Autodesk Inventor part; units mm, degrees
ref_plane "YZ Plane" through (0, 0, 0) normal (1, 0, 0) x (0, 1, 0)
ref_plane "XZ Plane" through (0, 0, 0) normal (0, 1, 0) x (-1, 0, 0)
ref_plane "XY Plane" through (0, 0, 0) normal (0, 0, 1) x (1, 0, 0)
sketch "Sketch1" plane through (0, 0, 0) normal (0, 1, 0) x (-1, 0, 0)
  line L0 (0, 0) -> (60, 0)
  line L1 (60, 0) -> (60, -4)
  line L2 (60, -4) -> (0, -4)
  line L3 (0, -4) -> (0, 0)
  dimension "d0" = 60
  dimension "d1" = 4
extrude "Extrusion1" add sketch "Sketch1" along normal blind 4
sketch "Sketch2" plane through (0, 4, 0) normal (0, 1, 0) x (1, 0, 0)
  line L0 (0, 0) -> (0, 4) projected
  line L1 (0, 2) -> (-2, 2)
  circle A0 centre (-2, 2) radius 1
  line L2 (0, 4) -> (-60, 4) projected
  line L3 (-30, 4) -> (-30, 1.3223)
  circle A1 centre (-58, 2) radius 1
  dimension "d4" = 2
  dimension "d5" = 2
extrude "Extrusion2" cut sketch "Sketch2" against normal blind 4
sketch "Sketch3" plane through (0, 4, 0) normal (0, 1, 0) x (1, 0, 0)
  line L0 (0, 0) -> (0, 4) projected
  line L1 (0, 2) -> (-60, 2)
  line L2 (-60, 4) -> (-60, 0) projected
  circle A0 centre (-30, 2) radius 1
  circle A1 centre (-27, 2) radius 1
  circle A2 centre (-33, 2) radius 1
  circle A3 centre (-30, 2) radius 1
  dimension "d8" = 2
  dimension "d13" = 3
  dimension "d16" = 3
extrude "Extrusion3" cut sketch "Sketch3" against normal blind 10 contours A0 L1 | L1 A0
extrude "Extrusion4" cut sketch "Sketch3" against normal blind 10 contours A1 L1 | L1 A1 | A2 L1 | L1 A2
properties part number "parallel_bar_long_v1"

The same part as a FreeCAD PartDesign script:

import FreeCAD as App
import Part
import Sketcher

V = App.Vector


def add_polygon(sketch, points):
    """Adds a closed chain of lines whose ends are joined by coincident constraints."""
    first, n = sketch.GeometryCount, len(points)
    for a, b in zip(points, points[1:] + points[:1]):
        sketch.addGeometry(Part.LineSegment(App.Vector(*a, 0), App.Vector(*b, 0)), False)
    for i in range(n):
        sketch.addConstraint(Sketcher.Constraint("Coincident", first + i, 2, first + (i + 1) % n, 1))

doc = App.newDocument("Part")
params = doc.addObject("Spreadsheet::Sheet", "Params")
for row, (alias, value) in enumerate([
    ("sketch1_width", "60 mm"),
    ("sketch1_height", "4 mm"),
    ("pad1_length", "4 mm"),
    ("sketch2_diameter", "2 mm"),
    ("pocket1_length", "4 mm"),
    ("sketch3_diameter", "2 mm"),
    ("pocket2_length", "10 mm"),
    ("sketch4_diameter", "2 mm"),
    ("pocket3_length", "10 mm"),
], start=1):
    params.set(f"A{row}", alias)
    params.set(f"B{row}", "=" + value)
    params.setAlias(f"B{row}", alias)

body = doc.addObject("PartDesign::Body", "Body")

# Sketch on XZ plane
sketch1 = body.newObject("Sketcher::SketchObject", "Sketch")
sketch1.AttachmentSupport = (doc.getObject("XZ_Plane"), [""])
sketch1.MapMode = "FlatFace"
add_polygon(sketch1, [(-60, 0), (0, 0), (0, -4), (-60, -4)])  # lines 0-3
sketch1.addConstraint(Sketcher.Constraint("Horizontal", 0))
sketch1.addConstraint(Sketcher.Constraint("Vertical", 1))
sketch1.addConstraint(Sketcher.Constraint("Horizontal", 2))
sketch1.addConstraint(Sketcher.Constraint("Vertical", 3))
sketch1.addConstraint(Sketcher.Constraint("Coincident", 0, 2, -1, 1))
sketch1.addConstraint(Sketcher.Constraint("DistanceX", 0, 1, 0, 2, 60.0))
sketch1.addConstraint(Sketcher.Constraint("DistanceY", 1, 2, 1, 1, 4.0))
sketch1.setExpression("Constraints[9]", "Params.sketch1_width")
sketch1.setExpression("Constraints[10]", "Params.sketch1_height")
pad1 = body.newObject("PartDesign::Pad", "Pad")
pad1.Profile = sketch1
pad1.setExpression("Length", "Params.pad1_length")
pad1.Reversed = True

# Sketch on XZ plane
sketch2 = body.newObject("Sketcher::SketchObject", "Sketch001")
sketch2.AttachmentSupport = (doc.getObject("XZ_Plane"), [""])
sketch2.MapMode = "FlatFace"
sketch2.AttachmentOffset = App.Placement(V(0, 0, -4), App.Rotation())
sketch2.addGeometry(Part.Circle(V(-2, -2, 0), V(0, 0, 1), 1), False)
sketch2.addGeometry(Part.Circle(V(-58, -2, 0), V(0, 0, 1), 1), False)
sketch2.addConstraint(Sketcher.Constraint("Equal", 0, 1))
sketch2.addConstraint(Sketcher.Constraint("Horizontal", 0, 3, 1, 3))
sketch2.addConstraint(Sketcher.Constraint("Diameter", 0, 2.0))
sketch2.addConstraint(Sketcher.Constraint("DistanceX", 0, 3, -1, 1, 2.0))
sketch2.addConstraint(Sketcher.Constraint("DistanceY", 0, 3, -1, 1, 2.0))
sketch2.addConstraint(Sketcher.Constraint("DistanceX", 1, 3, -1, 1, 58.0))
sketch2.setExpression("Constraints[2]", "Params.sketch2_diameter")
pocket1 = body.newObject("PartDesign::Pocket", "Pocket")
pocket1.Profile = sketch2
pocket1.setExpression("Length", "Params.pocket1_length")
pocket1.Reversed = True

# Sketch on XZ plane
sketch3 = body.newObject("Sketcher::SketchObject", "Sketch002")
sketch3.AttachmentSupport = (doc.getObject("XZ_Plane"), [""])
sketch3.MapMode = "FlatFace"
sketch3.AttachmentOffset = App.Placement(V(0, 0, -4), App.Rotation())
sketch3.addGeometry(Part.Circle(V(-30, -2, 0), V(0, 0, 1), 1), False)
sketch3.addConstraint(Sketcher.Constraint("Diameter", 0, 2.0))
sketch3.addConstraint(Sketcher.Constraint("DistanceY", 0, 3, -1, 1, 2.0))
sketch3.addConstraint(Sketcher.Constraint("DistanceX", 0, 3, -1, 1, 30.0))
sketch3.setExpression("Constraints[0]", "Params.sketch3_diameter")
pocket2 = body.newObject("PartDesign::Pocket", "Pocket001")
pocket2.Profile = sketch3
pocket2.setExpression("Length", "Params.pocket2_length")
pocket2.Reversed = True

# Sketch on XZ plane
sketch4 = body.newObject("Sketcher::SketchObject", "Sketch003")
sketch4.AttachmentSupport = (doc.getObject("XZ_Plane"), [""])
sketch4.MapMode = "FlatFace"
sketch4.AttachmentOffset = App.Placement(V(0, 0, -4), App.Rotation())
sketch4.addGeometry(Part.Circle(V(-27, -2, 0), V(0, 0, 1), 1), False)
sketch4.addGeometry(Part.Circle(V(-33, -2, 0), V(0, 0, 1), 1), False)
sketch4.addConstraint(Sketcher.Constraint("Equal", 0, 1))
sketch4.addConstraint(Sketcher.Constraint("Horizontal", 0, 3, 1, 3))
sketch4.addConstraint(Sketcher.Constraint("Diameter", 0, 2.0))
sketch4.addConstraint(Sketcher.Constraint("DistanceY", 0, 3, -1, 1, 2.0))
sketch4.addConstraint(Sketcher.Constraint("DistanceX", 0, 3, -1, 1, 27.0))
sketch4.addConstraint(Sketcher.Constraint("DistanceX", 1, 3, -1, 1, 33.0))
sketch4.setExpression("Constraints[2]", "Params.sketch4_diameter")
pocket3 = body.newObject("PartDesign::Pocket", "Pocket002")
pocket3.Profile = sketch4
pocket3.setExpression("Length", "Params.pocket3_length")
pocket3.Reversed = True

doc.recompute()
